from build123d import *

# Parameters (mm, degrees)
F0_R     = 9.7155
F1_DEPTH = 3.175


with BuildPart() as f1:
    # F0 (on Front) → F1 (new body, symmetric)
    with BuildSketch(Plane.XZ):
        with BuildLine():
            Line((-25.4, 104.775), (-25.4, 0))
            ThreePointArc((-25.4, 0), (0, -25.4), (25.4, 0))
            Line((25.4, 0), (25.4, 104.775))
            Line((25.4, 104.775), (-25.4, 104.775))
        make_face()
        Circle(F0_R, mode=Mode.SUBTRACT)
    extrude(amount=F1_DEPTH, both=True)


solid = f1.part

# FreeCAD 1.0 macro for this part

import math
import FreeCAD as App
import Part
import Sketcher
from FreeCAD import Vector
Q = App.Units.Quantity

doc = App.newDocument("Part")
body = doc.addObject("PartDesign::Body", "Body")

sketch1 = body.newObject("Sketcher::SketchObject", "Sketch")
sketch1.AttachmentSupport = (doc.getObject("XZ_Plane"), [""])
sketch1.MapMode = "FlatFace"
sketch1.addGeometry([
    Part.LineSegment(Vector(-25.4, 104.775, 0), Vector(-25.4, 0, 0)),
    Part.ArcOfCircle(Part.Circle(Vector(0, 0, 0), Vector(0, 0, 1), 25.4), math.radians(180), math.radians(360)),
    Part.LineSegment(Vector(25.4, 0, 0), Vector(25.4, 104.775, 0)),
    Part.LineSegment(Vector(25.4, 104.775, 0), Vector(-25.4, 104.775, 0)),
    Part.Circle(Vector(0, 0, 0), Vector(0, 0, 1), 9.7155),
], False)
sketch1.addConstraint([
    Sketcher.Constraint("Tangent", 0, 2, 1, 1),
    Sketcher.Constraint("Tangent", 1, 2, 2, 1),
    Sketcher.Constraint("Coincident", 2, 2, 3, 1),
    Sketcher.Constraint("Coincident", 3, 2, 0, 1),
    Sketcher.Constraint("Vertical", 0),
    Sketcher.Constraint("Vertical", 2),
    Sketcher.Constraint("Horizontal", 3),
    Sketcher.Constraint("Coincident", 1, 3, -1, 1),
    Sketcher.Constraint("Coincident", 4, 3, -1, 1),
    Sketcher.Constraint("Radius", 1, Q("1 in")),
    Sketcher.Constraint("Diameter", 4, Q("0.765 in")),
    Sketcher.Constraint("DistanceY", 0, 2, 0, 1, Q("4.125 in")),
])
pad1 = body.newObject("PartDesign::Pad", "Pad")
pad1.Profile = sketch1
pad1.Length = Q("0.25 in")
pad1.Midplane = True

doc.recompute()
